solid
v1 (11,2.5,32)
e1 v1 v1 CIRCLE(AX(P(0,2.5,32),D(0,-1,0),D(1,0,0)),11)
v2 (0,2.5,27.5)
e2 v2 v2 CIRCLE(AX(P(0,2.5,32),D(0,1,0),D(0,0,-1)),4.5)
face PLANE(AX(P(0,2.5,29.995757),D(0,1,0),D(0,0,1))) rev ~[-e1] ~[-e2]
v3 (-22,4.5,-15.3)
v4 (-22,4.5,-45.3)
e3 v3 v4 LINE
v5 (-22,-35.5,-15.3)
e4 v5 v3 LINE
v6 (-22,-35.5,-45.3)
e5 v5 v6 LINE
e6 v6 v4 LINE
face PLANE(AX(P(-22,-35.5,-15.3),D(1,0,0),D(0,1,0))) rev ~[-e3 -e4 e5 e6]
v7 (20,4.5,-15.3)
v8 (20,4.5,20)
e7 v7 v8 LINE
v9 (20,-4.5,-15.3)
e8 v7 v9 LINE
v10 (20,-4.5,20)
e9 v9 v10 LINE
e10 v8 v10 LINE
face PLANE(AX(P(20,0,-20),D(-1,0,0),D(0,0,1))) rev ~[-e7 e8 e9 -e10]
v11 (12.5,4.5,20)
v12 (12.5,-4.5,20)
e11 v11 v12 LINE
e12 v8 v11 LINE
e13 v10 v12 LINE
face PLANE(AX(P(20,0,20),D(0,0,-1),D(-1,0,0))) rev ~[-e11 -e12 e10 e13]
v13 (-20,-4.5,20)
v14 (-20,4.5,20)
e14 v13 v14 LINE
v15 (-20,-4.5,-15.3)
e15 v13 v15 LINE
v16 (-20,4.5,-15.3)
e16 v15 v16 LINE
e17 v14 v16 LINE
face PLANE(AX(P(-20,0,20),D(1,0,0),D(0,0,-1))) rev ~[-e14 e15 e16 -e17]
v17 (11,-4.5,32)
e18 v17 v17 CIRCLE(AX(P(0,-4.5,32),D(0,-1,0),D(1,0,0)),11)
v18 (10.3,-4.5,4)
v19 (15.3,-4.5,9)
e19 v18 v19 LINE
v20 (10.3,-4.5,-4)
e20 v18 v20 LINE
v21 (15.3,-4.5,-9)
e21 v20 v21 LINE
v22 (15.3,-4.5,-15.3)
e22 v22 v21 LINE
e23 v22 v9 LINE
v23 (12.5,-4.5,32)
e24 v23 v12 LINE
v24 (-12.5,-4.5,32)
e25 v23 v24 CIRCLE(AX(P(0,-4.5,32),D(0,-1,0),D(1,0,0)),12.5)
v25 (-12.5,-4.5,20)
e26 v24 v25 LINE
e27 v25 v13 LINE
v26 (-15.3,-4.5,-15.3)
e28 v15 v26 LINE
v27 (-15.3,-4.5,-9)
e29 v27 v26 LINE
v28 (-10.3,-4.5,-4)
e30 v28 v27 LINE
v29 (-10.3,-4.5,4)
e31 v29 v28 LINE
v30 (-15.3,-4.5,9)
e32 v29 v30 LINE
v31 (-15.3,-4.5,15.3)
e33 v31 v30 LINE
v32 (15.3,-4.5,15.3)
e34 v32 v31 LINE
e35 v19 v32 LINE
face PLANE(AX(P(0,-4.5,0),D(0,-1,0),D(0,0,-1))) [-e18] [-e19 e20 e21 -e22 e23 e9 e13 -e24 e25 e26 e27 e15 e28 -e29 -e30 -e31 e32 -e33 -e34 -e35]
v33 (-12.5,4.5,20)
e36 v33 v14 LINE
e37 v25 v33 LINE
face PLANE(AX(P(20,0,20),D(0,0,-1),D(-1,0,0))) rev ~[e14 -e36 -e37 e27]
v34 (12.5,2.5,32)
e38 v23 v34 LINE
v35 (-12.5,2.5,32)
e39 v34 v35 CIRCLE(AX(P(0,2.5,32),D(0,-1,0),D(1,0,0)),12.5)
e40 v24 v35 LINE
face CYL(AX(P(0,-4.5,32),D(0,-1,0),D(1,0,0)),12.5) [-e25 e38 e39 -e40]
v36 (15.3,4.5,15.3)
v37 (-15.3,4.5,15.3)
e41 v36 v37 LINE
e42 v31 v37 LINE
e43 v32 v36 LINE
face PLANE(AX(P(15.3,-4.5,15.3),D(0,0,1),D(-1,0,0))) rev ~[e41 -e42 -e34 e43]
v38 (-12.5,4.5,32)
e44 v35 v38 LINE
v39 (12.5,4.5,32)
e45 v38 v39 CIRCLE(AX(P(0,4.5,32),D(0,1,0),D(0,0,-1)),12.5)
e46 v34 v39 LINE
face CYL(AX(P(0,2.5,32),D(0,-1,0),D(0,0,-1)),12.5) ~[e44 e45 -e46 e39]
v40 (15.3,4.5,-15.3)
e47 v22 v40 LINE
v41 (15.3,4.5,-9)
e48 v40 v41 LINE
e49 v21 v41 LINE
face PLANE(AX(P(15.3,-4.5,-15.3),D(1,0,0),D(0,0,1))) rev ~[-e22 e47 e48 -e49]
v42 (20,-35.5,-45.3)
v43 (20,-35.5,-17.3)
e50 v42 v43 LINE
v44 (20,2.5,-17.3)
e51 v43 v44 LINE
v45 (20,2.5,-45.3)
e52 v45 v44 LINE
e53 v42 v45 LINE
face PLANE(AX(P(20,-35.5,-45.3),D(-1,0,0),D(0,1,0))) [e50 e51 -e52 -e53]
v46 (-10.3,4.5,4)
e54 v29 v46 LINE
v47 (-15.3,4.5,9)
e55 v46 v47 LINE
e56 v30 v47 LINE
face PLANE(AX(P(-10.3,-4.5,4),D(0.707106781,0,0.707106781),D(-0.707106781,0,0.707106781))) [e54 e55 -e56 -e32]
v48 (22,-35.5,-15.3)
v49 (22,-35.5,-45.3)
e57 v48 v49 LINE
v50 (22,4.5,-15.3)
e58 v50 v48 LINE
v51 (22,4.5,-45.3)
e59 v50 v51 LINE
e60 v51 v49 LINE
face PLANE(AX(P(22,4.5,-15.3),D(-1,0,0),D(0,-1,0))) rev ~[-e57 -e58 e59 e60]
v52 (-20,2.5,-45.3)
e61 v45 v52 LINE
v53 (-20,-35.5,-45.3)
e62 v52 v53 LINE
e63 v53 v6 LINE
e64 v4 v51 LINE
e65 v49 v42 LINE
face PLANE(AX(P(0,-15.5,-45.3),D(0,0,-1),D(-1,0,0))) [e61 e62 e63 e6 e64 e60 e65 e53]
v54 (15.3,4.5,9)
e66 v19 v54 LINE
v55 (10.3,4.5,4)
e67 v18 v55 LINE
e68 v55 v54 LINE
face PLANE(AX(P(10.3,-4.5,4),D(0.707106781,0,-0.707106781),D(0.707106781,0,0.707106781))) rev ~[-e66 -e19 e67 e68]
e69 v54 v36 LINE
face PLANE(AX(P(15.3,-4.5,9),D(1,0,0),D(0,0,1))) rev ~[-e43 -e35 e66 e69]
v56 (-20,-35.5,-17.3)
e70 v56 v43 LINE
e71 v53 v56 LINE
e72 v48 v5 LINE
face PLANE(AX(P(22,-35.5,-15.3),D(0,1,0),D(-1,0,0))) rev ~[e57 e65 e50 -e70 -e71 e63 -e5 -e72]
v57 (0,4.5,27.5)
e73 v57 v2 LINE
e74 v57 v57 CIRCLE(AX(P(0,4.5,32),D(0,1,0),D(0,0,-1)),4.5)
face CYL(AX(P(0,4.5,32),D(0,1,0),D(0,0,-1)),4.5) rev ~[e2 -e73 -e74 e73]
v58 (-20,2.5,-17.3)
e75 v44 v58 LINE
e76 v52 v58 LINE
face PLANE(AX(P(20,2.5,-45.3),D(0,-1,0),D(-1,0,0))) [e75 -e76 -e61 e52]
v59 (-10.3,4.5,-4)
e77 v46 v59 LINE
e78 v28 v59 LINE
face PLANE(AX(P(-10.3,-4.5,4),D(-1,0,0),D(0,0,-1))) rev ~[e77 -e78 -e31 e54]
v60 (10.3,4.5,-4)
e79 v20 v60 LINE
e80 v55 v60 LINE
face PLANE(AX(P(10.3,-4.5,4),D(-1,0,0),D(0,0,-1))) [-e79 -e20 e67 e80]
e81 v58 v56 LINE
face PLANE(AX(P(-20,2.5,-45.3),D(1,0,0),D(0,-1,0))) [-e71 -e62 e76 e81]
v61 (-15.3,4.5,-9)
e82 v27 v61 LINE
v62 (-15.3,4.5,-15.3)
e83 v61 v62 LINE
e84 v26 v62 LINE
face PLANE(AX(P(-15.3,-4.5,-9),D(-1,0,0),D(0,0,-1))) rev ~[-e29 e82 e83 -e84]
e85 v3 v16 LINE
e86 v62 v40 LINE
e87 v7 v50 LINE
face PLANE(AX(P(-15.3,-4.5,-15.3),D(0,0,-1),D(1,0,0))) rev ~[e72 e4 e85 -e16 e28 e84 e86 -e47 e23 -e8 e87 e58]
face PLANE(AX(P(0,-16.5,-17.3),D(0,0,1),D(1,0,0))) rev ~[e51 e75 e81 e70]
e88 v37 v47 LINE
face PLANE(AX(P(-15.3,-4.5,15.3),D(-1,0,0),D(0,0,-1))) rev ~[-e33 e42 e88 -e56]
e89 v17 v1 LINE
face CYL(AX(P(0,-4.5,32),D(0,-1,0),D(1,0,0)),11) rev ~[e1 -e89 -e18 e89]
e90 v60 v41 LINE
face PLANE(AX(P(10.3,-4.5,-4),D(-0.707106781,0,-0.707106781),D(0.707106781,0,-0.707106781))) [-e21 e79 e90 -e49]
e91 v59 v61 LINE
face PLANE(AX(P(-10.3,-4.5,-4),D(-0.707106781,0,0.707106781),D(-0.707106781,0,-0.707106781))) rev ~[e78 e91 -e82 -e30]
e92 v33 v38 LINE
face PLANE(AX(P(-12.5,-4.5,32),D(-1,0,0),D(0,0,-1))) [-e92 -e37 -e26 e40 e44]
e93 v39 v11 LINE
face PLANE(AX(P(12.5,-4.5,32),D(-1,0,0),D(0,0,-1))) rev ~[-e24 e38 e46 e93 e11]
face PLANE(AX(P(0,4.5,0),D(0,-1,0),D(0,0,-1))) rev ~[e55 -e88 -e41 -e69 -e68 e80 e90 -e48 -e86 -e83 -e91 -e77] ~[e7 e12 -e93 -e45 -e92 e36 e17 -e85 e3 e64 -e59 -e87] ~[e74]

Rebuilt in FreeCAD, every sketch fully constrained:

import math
import FreeCAD as App
import Part
import Sketcher

doc = App.newDocument("Part")
body = doc.addObject("PartDesign::Body", "Body")

# Sketch on XZ plane
sketch1 = body.newObject("Sketcher::SketchObject", "Sketch")
sketch1.AttachmentSupport = (doc.getObject("XZ_Plane"), [""])
sketch1.MapMode = "FlatFace"
sketch1.addGeometry(Part.LineSegment(App.Vector(-20, 20, 0), App.Vector(-20, -20, 0)), False)
sketch1.addGeometry(Part.LineSegment(App.Vector(-20, -20, 0), App.Vector(20, -20, 0)), False)
sketch1.addGeometry(Part.LineSegment(App.Vector(20, -20, 0), App.Vector(20, 20, 0)), False)
sketch1.addGeometry(Part.LineSegment(App.Vector(20, 20, 0), App.Vector(-20, 20, 0)), False)
sketch1.addConstraint(Sketcher.Constraint("Coincident", 0, 2, 1, 1))
sketch1.addConstraint(Sketcher.Constraint("Coincident", 1, 2, 2, 1))
sketch1.addConstraint(Sketcher.Constraint("Coincident", 2, 2, 3, 1))
sketch1.addConstraint(Sketcher.Constraint("Coincident", 3, 2, 0, 1))
sketch1.addConstraint(Sketcher.Constraint("Vertical", 0))
sketch1.addConstraint(Sketcher.Constraint("Horizontal", 1))
sketch1.addConstraint(Sketcher.Constraint("Vertical", 2))
sketch1.addConstraint(Sketcher.Constraint("Horizontal", 3))
sketch1.addConstraint(Sketcher.Constraint("Symmetric", 0, 2, 2, 2, -1, 1))
sketch1.addConstraint(Sketcher.Constraint("Equal", 3, 0))
sketch1.addConstraint(Sketcher.Constraint("DistanceX", 1, 1, 1, 2, 40.0))
pad1 = body.newObject("PartDesign::Pad", "Pad")
pad1.Profile = sketch1
pad1.Length = 9
pad1.Midplane = True

# Sketch on XZ plane
sketch2 = body.newObject("Sketcher::SketchObject", "Sketch001")
sketch2.AttachmentSupport = (doc.getObject("XZ_Plane"), [""])
sketch2.MapMode = "FlatFace"
sketch2.AttachmentOffset = App.Placement(App.Vector(0, 0, 4.5), App.Rotation())
sketch2.addGeometry(Part.LineSegment(App.Vector(-15, -9, 0), App.Vector(-15, -15, 0)), False)
sketch2.addGeometry(Part.LineSegment(App.Vector(-15, -15, 0), App.Vector(15, -15, 0)), False)
sketch2.addGeometry(Part.LineSegment(App.Vector(15, -15, 0), App.Vector(15, -9, 0)), False)
sketch2.addGeometry(Part.LineSegment(App.Vector(15, -9, 0), App.Vector(10, -4, 0)), False)
sketch2.addGeometry(Part.LineSegment(App.Vector(10, -4, 0), App.Vector(10, 4, 0)), False)
sketch2.addGeometry(Part.LineSegment(App.Vector(10, 4, 0), App.Vector(15, 9, 0)), False)
sketch2.addGeometry(Part.LineSegment(App.Vector(15, 9, 0), App.Vector(15, 15, 0)), False)
sketch2.addGeometry(Part.LineSegment(App.Vector(15, 15, 0), App.Vector(-15, 15, 0)), False)
sketch2.addGeometry(Part.LineSegment(App.Vector(-15, 15, 0), App.Vector(-15, 9, 0)), False)
sketch2.addGeometry(Part.LineSegment(App.Vector(-15, 9, 0), App.Vector(-10, 4, 0)), False)
sketch2.addGeometry(Part.LineSegment(App.Vector(-10, 4, 0), App.Vector(-10, -4, 0)), False)
sketch2.addGeometry(Part.LineSegment(App.Vector(-10, -4, 0), App.Vector(-15, -9, 0)), False)
sketch2.addConstraint(Sketcher.Constraint("Coincident", 0, 2, 1, 1))
sketch2.addConstraint(Sketcher.Constraint("Coincident", 1, 2, 2, 1))
sketch2.addConstraint(Sketcher.Constraint("Coincident", 2, 2, 3, 1))
sketch2.addConstraint(Sketcher.Constraint("Coincident", 3, 2, 4, 1))
sketch2.addConstraint(Sketcher.Constraint("Coincident", 4, 2, 5, 1))
sketch2.addConstraint(Sketcher.Constraint("Coincident", 5, 2, 6, 1))
sketch2.addConstraint(Sketcher.Constraint("Coincident", 6, 2, 7, 1))
sketch2.addConstraint(Sketcher.Constraint("Coincident", 7, 2, 8, 1))
sketch2.addConstraint(Sketcher.Constraint("Coincident", 8, 2, 9, 1))
sketch2.addConstraint(Sketcher.Constraint("Coincident", 9, 2, 10, 1))
sketch2.addConstraint(Sketcher.Constraint("Coincident", 10, 2, 11, 1))
sketch2.addConstraint(Sketcher.Constraint("Coincident", 11, 2, 0, 1))
sketch2.addConstraint(Sketcher.Constraint("Vertical", 0))
sketch2.addConstraint(Sketcher.Constraint("Horizontal", 1))
sketch2.addConstraint(Sketcher.Constraint("Vertical", 2))
sketch2.addConstraint(Sketcher.Constraint("Vertical", 4))
sketch2.addConstraint(Sketcher.Constraint("Vertical", 6))
sketch2.addConstraint(Sketcher.Constraint("Horizontal", 7))
sketch2.addConstraint(Sketcher.Constraint("Vertical", 8))
sketch2.addConstraint(Sketcher.Constraint("Vertical", 10))
sketch2.addConstraint(Sketcher.Constraint("Symmetric", 0, 2, 6, 2, -1, 1))
sketch2.addConstraint(Sketcher.Constraint("Symmetric", 2, 2, 8, 2, -1, 1))
sketch2.addConstraint(Sketcher.Constraint("Symmetric", 3, 2, 9, 2, -1, 1))
sketch2.addConstraint(Sketcher.Constraint("Symmetric", 5, 2, 8, 2, -2))
sketch2.addConstraint(Sketcher.Constraint("Perpendicular", 3, 5))
sketch2.addConstraint(Sketcher.Constraint("Perpendicular", 9, 11))
sketch2.addConstraint(Sketcher.Constraint("Horizontal", 4, 2, 9, 2))
sketch2.addConstraint(Sketcher.Constraint("Horizontal", 3, 2, 10, 2))
sketch2.addConstraint(Sketcher.Constraint("DistanceY", 4, 1, 4, 2, 8.0))
sketch2.addConstraint(Sketcher.Constraint("DistanceX", 1, 1, 1, 2, 30.6))
sketch2.addConstraint(Sketcher.Constraint("DistanceY", 0, 2, 0, 1, 6.3))
sketch2.addConstraint(Sketcher.Constraint("DistanceY", 2, 2, -1, 1, 9.0))
pocket1 = body.newObject("PartDesign::Pocket", "Pocket")
pocket1.Profile = sketch2
pocket1.Length = 161.5

# Sketch on XZ plane
sketch3 = body.newObject("Sketcher::SketchObject", "Sketch002")
sketch3.AttachmentSupport = (doc.getObject("XZ_Plane"), [""])
sketch3.MapMode = "FlatFace"
sketch3.AttachmentOffset = App.Placement(App.Vector(0, 0, 4.5), App.Rotation())
sketch3.addGeometry(Part.ArcOfCircle(Part.Circle(App.Vector(0, 32, 0), App.Vector(0, 0, 1), 12), math.radians(0), math.radians(180)), False)
sketch3.addGeometry(Part.LineSegment(App.Vector(-12, 32, 0), App.Vector(-12, 20, 0)), False)
sketch3.addGeometry(Part.LineSegment(App.Vector(-12, 20, 0), App.Vector(12, 20, 0)), False)
sketch3.addGeometry(Part.LineSegment(App.Vector(12, 20, 0), App.Vector(12, 32, 0)), False)
sketch3.addConstraint(Sketcher.Constraint("Tangent", 0, 2, 1, 1))
sketch3.addConstraint(Sketcher.Constraint("Coincident", 1, 2, 2, 1))
sketch3.addConstraint(Sketcher.Constraint("Coincident", 2, 2, 3, 1))
sketch3.addConstraint(Sketcher.Constraint("Tangent", 3, 2, 0, 1))
sketch3.addConstraint(Sketcher.Constraint("Vertical", 1))
sketch3.addConstraint(Sketcher.Constraint("Horizontal", 2))
sketch3.addConstraint(Sketcher.Constraint("Vertical", 3))
sketch3.addConstraint(Sketcher.Constraint("PointOnObject", 0, 3, -2))
sketch3.addConstraint(Sketcher.Constraint("Radius", 0, 12.5))
sketch3.addConstraint(Sketcher.Constraint("DistanceY", 1, 2, 1, 1, 12.0))
sketch3.addConstraint(Sketcher.Constraint("DistanceY", -1, 1, 0, 3, 32.0))
pad2 = body.newObject("PartDesign::Pad", "Pad001")
pad2.Profile = sketch3
pad2.Length = 7
pad2.Reversed = True

# Sketch on XZ plane
sketch4 = body.newObject("Sketcher::SketchObject", "Sketch003")
sketch4.AttachmentSupport = (doc.getObject("XZ_Plane"), [""])
sketch4.MapMode = "FlatFace"
sketch4.AttachmentOffset = App.Placement(App.Vector(0, 0, 4.5), App.Rotation())
sketch4.addGeometry(Part.Circle(App.Vector(0, 32, 0), App.Vector(0, 0, 1), 11), False)
sketch4.addConstraint(Sketcher.Constraint("PointOnObject", 0, 3, -2))
sketch4.addConstraint(Sketcher.Constraint("Diameter", 0, 22.0))
sketch4.addConstraint(Sketcher.Constraint("DistanceY", -1, 1, 0, 3, 32.0))
pocket2 = body.newObject("PartDesign::Pocket", "Pocket001")
pocket2.Profile = sketch4
pocket2.Length = 39

# Sketch on XZ plane
sketch5 = body.newObject("Sketcher::SketchObject", "Sketch004")
sketch5.AttachmentSupport = (doc.getObject("XZ_Plane"), [""])
sketch5.MapMode = "FlatFace"
sketch5.AttachmentOffset = App.Placement(App.Vector(0, 0, -2.5), App.Rotation())
sketch5.addGeometry(Part.ArcOfCircle(Part.Circle(App.Vector(0, 32, 0), App.Vector(0, 0, 1), 12), math.radians(0), math.radians(180)), False)
sketch5.addGeometry(Part.LineSegment(App.Vector(12, 32, 0), App.Vector(12, 20, 0)), False)
sketch5.addGeometry(Part.LineSegment(App.Vector(12, 20, 0), App.Vector(-12, 20, 0)), False)
sketch5.addGeometry(Part.LineSegment(App.Vector(-12, 20, 0), App.Vector(-12, 32, 0)), False)
sketch5.addConstraint(Sketcher.Constraint("Tangent", 0, 1, 1, 1))
sketch5.addConstraint(Sketcher.Constraint("Coincident", 1, 2, 2, 1))
sketch5.addConstraint(Sketcher.Constraint("Coincident", 2, 2, 3, 1))
sketch5.addConstraint(Sketcher.Constraint("Tangent", 3, 2, 0, 2))
sketch5.addConstraint(Sketcher.Constraint("Vertical", 1))
sketch5.addConstraint(Sketcher.Constraint("Horizontal", 2))
sketch5.addConstraint(Sketcher.Constraint("Vertical", 3))
sketch5.addConstraint(Sketcher.Constraint("PointOnObject", 0, 3, -2))
sketch5.addConstraint(Sketcher.Constraint("Radius", 0, 12.5))
sketch5.addConstraint(Sketcher.Constraint("DistanceY", 1, 2, 1, 1, 12.0))
sketch5.addConstraint(Sketcher.Constraint("DistanceY", -1, 1, 0, 3, 32.0))
pad3 = body.newObject("PartDesign::Pad", "Pad002")
pad3.Profile = sketch5
pad3.Length = 2
pad3.Reversed = True

# Sketch on XZ plane
sketch6 = body.newObject("Sketcher::SketchObject", "Sketch005")
sketch6.AttachmentSupport = (doc.getObject("XZ_Plane"), [""])
sketch6.MapMode = "FlatFace"
sketch6.AttachmentOffset = App.Placement(App.Vector(0, 0, -4.5), App.Rotation())
sketch6.addGeometry(Part.Circle(App.Vector(0, 32, 0), App.Vector(0, 0, 1), 4.5), False)
sketch6.addConstraint(Sketcher.Constraint("PointOnObject", 0, 3, -2))
sketch6.addConstraint(Sketcher.Constraint("Diameter", 0, 9.0))
sketch6.addConstraint(Sketcher.Constraint("DistanceY", -1, 1, 0, 3, 32.0))
pocket3 = body.newObject("PartDesign::Pocket", "Pocket002")
pocket3.Profile = sketch6
pocket3.Length = 37
pocket3.Reversed = True

# Sketch on XY plane
sketch7 = body.newObject("Sketcher::SketchObject", "Sketch006")
sketch7.AttachmentSupport = (doc.getObject("XY_Plane"), [""])
sketch7.MapMode = "FlatFace"
sketch7.AttachmentOffset = App.Placement(App.Vector(0, 0, -15.3), App.Rotation())
sketch7.addGeometry(Part.LineSegment(App.Vector(22, 4, 0), App.Vector(-22, 4, 0)), False)
sketch7.addGeometry(Part.LineSegment(App.Vector(-22, 4, 0), App.Vector(-22, -36, 0)), False)
sketch7.addGeometry(Part.LineSegment(App.Vector(-22, -36, 0), App.Vector(22, -36, 0)), False)
sketch7.addGeometry(Part.LineSegment(App.Vector(22, -36, 0), App.Vector(22, 4, 0)), False)
sketch7.addConstraint(Sketcher.Constraint("Coincident", 0, 2, 1, 1))
sketch7.addConstraint(Sketcher.Constraint("Coincident", 1, 2, 2, 1))
sketch7.addConstraint(Sketcher.Constraint("Coincident", 2, 2, 3, 1))
sketch7.addConstraint(Sketcher.Constraint("Coincident", 3, 2, 0, 1))
sketch7.addConstraint(Sketcher.Constraint("Horizontal", 0))
sketch7.addConstraint(Sketcher.Constraint("Vertical", 1))
sketch7.addConstraint(Sketcher.Constraint("Horizontal", 2))
sketch7.addConstraint(Sketcher.Constraint("Vertical", 3))
sketch7.addConstraint(Sketcher.Constraint("DistanceY", -1, 1, 0, 2, 4.5))
sketch7.addConstraint(Sketcher.Constraint("DistanceX", 0, 2, 0, 1, 44.0))
sketch7.addConstraint(Sketcher.Constraint("DistanceY", 1, 2, 1, 1, 40.0))
sketch7.addConstraint(Sketcher.Constraint("DistanceX", 0, 2, -1, 1, 22.0))
pad4 = body.newObject("PartDesign::Pad", "Pad003")
pad4.Profile = sketch7
pad4.Length = 30
pad4.Reversed = True

# Sketch on XY plane
sketch8 = body.newObject("Sketcher::SketchObject", "Sketch007")
sketch8.AttachmentSupport = (doc.getObject("XY_Plane"), [""])
sketch8.MapMode = "FlatFace"
sketch8.AttachmentOffset = App.Placement(App.Vector(0, 0, -45.3), App.Rotation())
sketch8.addGeometry(Part.LineSegment(App.Vector(20, -36, 0), App.Vector(-20, -36, 0)), False)
sketch8.addGeometry(Part.LineSegment(App.Vector(-20, -36, 0), App.Vector(-20, 2, 0)), False)
sketch8.addGeometry(Part.LineSegment(App.Vector(-20, 2, 0), App.Vector(20, 2, 0)), False)
sketch8.addGeometry(Part.LineSegment(App.Vector(20, 2, 0), App.Vector(20, -36, 0)), False)
sketch8.addConstraint(Sketcher.Constraint("Coincident", 0, 2, 1, 1))
sketch8.addConstraint(Sketcher.Constraint("Coincident", 1, 2, 2, 1))
sketch8.addConstraint(Sketcher.Constraint("Coincident", 2, 2, 3, 1))
sketch8.addConstraint(Sketcher.Constraint("Coincident", 3, 2, 0, 1))
sketch8.addConstraint(Sketcher.Constraint("Horizontal", 0))
sketch8.addConstraint(Sketcher.Constraint("Vertical", 1))
sketch8.addConstraint(Sketcher.Constraint("Horizontal", 2))
sketch8.addConstraint(Sketcher.Constraint("Vertical", 3))
sketch8.addConstraint(Sketcher.Constraint("DistanceX", 0, 2, 0, 1, 40.0))
sketch8.addConstraint(Sketcher.Constraint("DistanceY", 1, 1, 1, 2, 38.0))
sketch8.addConstraint(Sketcher.Constraint("DistanceX", 0, 2, -1, 1, 20.0))
sketch8.addConstraint(Sketcher.Constraint("DistanceY", 0, 2, -1, 1, 35.5))
pocket4 = body.newObject("PartDesign::Pocket", "Pocket003")
pocket4.Profile = sketch8
pocket4.Length = 28
pocket4.Reversed = True

doc.recompute()
